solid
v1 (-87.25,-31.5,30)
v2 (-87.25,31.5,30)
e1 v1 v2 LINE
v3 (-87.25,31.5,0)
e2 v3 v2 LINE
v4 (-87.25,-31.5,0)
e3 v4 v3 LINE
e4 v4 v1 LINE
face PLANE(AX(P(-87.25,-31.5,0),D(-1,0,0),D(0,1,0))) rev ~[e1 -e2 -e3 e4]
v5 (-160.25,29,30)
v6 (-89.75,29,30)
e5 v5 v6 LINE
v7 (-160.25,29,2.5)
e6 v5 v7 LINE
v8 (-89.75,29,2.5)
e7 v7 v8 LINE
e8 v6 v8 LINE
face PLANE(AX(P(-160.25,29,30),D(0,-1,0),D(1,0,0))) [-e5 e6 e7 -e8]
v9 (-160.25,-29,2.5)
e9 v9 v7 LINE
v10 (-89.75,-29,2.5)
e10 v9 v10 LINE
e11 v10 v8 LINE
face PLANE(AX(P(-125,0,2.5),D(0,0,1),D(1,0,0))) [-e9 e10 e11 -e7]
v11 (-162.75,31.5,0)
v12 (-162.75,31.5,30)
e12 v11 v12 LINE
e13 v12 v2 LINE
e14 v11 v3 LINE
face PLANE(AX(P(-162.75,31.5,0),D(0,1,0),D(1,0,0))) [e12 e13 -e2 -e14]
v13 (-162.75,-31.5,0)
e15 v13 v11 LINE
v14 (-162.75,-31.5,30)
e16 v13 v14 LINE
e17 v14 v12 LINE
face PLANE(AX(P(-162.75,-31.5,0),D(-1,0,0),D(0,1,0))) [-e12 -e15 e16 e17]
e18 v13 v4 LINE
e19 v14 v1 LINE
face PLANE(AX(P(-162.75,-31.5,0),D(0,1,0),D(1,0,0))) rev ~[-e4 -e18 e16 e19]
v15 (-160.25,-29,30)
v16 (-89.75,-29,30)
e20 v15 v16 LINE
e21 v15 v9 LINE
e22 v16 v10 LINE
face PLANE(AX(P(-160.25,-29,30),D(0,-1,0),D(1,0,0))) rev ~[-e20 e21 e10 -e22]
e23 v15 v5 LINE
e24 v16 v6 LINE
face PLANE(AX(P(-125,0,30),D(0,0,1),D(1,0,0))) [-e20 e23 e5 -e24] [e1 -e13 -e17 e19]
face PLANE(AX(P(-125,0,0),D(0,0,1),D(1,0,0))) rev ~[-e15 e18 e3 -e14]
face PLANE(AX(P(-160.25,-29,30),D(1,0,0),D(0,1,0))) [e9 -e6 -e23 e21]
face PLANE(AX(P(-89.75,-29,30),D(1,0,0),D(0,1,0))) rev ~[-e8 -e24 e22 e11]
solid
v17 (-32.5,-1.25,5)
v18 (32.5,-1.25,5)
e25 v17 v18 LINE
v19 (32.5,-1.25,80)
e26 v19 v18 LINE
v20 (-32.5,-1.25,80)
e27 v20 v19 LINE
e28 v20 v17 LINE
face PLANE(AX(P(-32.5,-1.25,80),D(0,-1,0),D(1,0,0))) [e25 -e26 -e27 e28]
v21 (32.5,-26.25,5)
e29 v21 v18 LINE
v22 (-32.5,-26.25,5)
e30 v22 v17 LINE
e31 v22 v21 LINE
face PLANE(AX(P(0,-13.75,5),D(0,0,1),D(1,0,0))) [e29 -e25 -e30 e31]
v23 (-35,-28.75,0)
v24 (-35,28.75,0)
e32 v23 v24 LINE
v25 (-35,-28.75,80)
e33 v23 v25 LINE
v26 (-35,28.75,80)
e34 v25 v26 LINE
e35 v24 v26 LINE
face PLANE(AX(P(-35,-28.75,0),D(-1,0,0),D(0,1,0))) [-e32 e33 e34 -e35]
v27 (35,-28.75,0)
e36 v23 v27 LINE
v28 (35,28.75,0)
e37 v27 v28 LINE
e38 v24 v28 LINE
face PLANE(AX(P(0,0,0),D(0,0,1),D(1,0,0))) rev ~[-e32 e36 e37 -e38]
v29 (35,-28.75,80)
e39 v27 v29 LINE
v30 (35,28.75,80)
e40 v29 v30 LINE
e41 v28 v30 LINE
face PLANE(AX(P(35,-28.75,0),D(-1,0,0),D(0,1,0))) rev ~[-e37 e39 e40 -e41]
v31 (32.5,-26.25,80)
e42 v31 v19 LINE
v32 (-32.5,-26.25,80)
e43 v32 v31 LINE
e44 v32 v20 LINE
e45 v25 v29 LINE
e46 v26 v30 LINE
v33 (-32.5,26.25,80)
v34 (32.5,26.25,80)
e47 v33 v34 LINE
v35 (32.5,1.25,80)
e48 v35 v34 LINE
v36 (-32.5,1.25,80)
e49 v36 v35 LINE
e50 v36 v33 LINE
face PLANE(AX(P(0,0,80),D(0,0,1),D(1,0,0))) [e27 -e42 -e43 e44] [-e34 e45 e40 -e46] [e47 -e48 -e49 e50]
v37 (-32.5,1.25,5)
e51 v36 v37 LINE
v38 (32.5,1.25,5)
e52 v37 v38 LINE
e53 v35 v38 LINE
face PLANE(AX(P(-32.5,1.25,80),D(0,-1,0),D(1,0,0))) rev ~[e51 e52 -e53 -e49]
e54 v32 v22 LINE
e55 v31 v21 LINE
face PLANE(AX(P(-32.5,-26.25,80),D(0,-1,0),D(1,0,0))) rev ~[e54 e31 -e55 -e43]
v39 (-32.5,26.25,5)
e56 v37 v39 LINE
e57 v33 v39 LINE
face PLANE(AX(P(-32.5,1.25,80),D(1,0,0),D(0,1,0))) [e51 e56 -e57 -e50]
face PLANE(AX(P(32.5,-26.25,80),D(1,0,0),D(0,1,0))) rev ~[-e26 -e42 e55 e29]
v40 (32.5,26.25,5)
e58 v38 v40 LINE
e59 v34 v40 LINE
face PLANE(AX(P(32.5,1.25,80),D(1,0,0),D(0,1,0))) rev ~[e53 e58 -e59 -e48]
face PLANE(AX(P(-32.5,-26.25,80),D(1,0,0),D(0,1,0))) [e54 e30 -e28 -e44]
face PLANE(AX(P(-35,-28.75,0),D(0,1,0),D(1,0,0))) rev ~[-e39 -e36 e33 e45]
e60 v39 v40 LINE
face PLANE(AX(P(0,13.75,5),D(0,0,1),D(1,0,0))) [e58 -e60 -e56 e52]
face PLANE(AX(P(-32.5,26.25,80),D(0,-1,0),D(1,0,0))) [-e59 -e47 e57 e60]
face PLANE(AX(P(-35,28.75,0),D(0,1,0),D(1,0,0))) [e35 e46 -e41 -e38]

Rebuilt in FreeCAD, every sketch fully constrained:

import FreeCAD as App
import Part
import Sketcher

V = App.Vector
Q = App.Units.Quantity


def add_polygon(sketch, points):
    """Adds a closed chain of lines whose ends are joined by coincident constraints."""
    first, n = sketch.GeometryCount, len(points)
    for a, b in zip(points, points[1:] + points[:1]):
        sketch.addGeometry(Part.LineSegment(App.Vector(*a, 0), App.Vector(*b, 0)), False)
    for i in range(n):
        sketch.addConstraint(Sketcher.Constraint("Coincident", first + i, 2, first + (i + 1) % n, 1))

doc = App.newDocument("Part")
body = doc.addObject("PartDesign::Body", "Body")

# Sketch on XY plane
sketch1 = doc.addObject("Sketcher::SketchObject", "Sketch")
body.addObject(sketch1)
sketch1.AttachmentSupport = (doc.XY_Plane, [""])
sketch1.MapMode = "FlatFace"
add_polygon(sketch1, [(-35, 29), (-35, -29), (35, -29), (35, 29)])  # lines 0-3
sketch1.addConstraint([
    Sketcher.Constraint("Vertical", 0),
    Sketcher.Constraint("Horizontal", 1),
    Sketcher.Constraint("Vertical", 2),
    Sketcher.Constraint("Horizontal", 3),
    Sketcher.Constraint("Symmetric", 0, 2, 2, 2, -1, 1),
    Sketcher.Constraint("DistanceX", 1, 1, 1, 2, Q("70 mm")),
    Sketcher.Constraint("DistanceY", 0, 2, 0, 1, Q("57.5 mm")),
])
pad1 = doc.addObject("PartDesign::Pad", "Pad")
body.addObject(pad1)
pad1.Profile = sketch1
pad1.Length = 80

# Sketch on XY plane
sketch2 = doc.addObject("Sketcher::SketchObject", "Sketch001")
body.addObject(sketch2)
sketch2.AttachmentSupport = (doc.XY_Plane, [""])
sketch2.MapMode = "FlatFace"
sketch2.AttachmentOffset = App.Placement(V(0, 0, 80), App.Rotation())
add_polygon(sketch2, [(-32, 26), (-32, 1), (32, 1), (32, 26)])  # lines 0-3
add_polygon(sketch2, [(-32, -1), (-32, -26), (32, -26), (32, -1)])  # lines 4-7
sketch2.addConstraint([
    Sketcher.Constraint("Vertical", 0),
    Sketcher.Constraint("Horizontal", 1),
    Sketcher.Constraint("Vertical", 2),
    Sketcher.Constraint("Horizontal", 3),
    Sketcher.Constraint("Vertical", 4),
    Sketcher.Constraint("Horizontal", 5),
    Sketcher.Constraint("Vertical", 6),
    Sketcher.Constraint("Horizontal", 7),
    Sketcher.Constraint("Symmetric", 2, 2, 4, 2, -1, 1),
    Sketcher.Constraint("Symmetric", 0, 2, 6, 2, -1, 1),
    Sketcher.Constraint("Vertical", 3, 2, 4, 2),
    Sketcher.Constraint("DistanceX", 1, 1, 1, 2, Q("65 mm")),
    Sketcher.Constraint("DistanceY", 0, 2, 0, 1, Q("25 mm")),
    Sketcher.Constraint("DistanceY", 4, 2, 0, 2, Q("27.5 mm")),
])
pocket1 = doc.addObject("PartDesign::Pocket", "Pocket")
body.addObject(pocket1)
pocket1.Profile = sketch2
pocket1.Length = 75
body2 = doc.addObject("PartDesign::Body", "Body001")

# Sketch on XY plane
sketch3 = doc.addObject("Sketcher::SketchObject", "Sketch002")
body2.addObject(sketch3)
sketch3.AttachmentSupport = (doc.getObject("XY_Plane001"), [""])
sketch3.MapMode = "FlatFace"
add_polygon(sketch3, [(-163, 32), (-163, -32), (-87, -32), (-87, 32)])  # lines 0-3
sketch3.addConstraint([
    Sketcher.Constraint("Vertical", 0),
    Sketcher.Constraint("Horizontal", 1),
    Sketcher.Constraint("Vertical", 2),
    Sketcher.Constraint("Horizontal", 3),
    Sketcher.Constraint("DistanceY", 0, 2, 0, 1, Q("63 mm")),
    Sketcher.Constraint("DistanceX", 1, 1, 1, 2, Q("75.5 mm")),
    Sketcher.Constraint("DistanceY", 0, 2, -1, 1, Q("31.5 mm")),
    Sketcher.Constraint("DistanceX", 0, 2, -1, 1, Q("162.75 mm")),
])
pad2 = doc.addObject("PartDesign::Pad", "Pad001")
body2.addObject(pad2)
pad2.Profile = sketch3
pad2.Length = 30

# Sketch on XY plane
sketch4 = doc.addObject("Sketcher::SketchObject", "Sketch003")
body2.addObject(sketch4)
sketch4.AttachmentSupport = (doc.getObject("XY_Plane001"), [""])
sketch4.MapMode = "FlatFace"
sketch4.AttachmentOffset = App.Placement(V(0, 0, 30), App.Rotation())
add_polygon(sketch4, [(-160, 29), (-160, -29), (-90, -29), (-90, 29)])  # lines 0-3
sketch4.addConstraint([
    Sketcher.Constraint("Vertical", 0),
    Sketcher.Constraint("Horizontal", 1),
    Sketcher.Constraint("Vertical", 2),
    Sketcher.Constraint("Horizontal", 3),
    Sketcher.Constraint("DistanceY", 0, 2, 0, 1, Q("58 mm")),
    Sketcher.Constraint("DistanceX", 1, 1, 1, 2, Q("70.5 mm")),
    Sketcher.Constraint("DistanceY", 0, 2, -1, 1, Q("29 mm")),
    Sketcher.Constraint("DistanceX", 0, 2, -1, 1, Q("160.25 mm")),
])
pocket2 = doc.addObject("PartDesign::Pocket", "Pocket001")
body2.addObject(pocket2)
pocket2.Profile = sketch4
pocket2.Length = 27.5

doc.recompute()
